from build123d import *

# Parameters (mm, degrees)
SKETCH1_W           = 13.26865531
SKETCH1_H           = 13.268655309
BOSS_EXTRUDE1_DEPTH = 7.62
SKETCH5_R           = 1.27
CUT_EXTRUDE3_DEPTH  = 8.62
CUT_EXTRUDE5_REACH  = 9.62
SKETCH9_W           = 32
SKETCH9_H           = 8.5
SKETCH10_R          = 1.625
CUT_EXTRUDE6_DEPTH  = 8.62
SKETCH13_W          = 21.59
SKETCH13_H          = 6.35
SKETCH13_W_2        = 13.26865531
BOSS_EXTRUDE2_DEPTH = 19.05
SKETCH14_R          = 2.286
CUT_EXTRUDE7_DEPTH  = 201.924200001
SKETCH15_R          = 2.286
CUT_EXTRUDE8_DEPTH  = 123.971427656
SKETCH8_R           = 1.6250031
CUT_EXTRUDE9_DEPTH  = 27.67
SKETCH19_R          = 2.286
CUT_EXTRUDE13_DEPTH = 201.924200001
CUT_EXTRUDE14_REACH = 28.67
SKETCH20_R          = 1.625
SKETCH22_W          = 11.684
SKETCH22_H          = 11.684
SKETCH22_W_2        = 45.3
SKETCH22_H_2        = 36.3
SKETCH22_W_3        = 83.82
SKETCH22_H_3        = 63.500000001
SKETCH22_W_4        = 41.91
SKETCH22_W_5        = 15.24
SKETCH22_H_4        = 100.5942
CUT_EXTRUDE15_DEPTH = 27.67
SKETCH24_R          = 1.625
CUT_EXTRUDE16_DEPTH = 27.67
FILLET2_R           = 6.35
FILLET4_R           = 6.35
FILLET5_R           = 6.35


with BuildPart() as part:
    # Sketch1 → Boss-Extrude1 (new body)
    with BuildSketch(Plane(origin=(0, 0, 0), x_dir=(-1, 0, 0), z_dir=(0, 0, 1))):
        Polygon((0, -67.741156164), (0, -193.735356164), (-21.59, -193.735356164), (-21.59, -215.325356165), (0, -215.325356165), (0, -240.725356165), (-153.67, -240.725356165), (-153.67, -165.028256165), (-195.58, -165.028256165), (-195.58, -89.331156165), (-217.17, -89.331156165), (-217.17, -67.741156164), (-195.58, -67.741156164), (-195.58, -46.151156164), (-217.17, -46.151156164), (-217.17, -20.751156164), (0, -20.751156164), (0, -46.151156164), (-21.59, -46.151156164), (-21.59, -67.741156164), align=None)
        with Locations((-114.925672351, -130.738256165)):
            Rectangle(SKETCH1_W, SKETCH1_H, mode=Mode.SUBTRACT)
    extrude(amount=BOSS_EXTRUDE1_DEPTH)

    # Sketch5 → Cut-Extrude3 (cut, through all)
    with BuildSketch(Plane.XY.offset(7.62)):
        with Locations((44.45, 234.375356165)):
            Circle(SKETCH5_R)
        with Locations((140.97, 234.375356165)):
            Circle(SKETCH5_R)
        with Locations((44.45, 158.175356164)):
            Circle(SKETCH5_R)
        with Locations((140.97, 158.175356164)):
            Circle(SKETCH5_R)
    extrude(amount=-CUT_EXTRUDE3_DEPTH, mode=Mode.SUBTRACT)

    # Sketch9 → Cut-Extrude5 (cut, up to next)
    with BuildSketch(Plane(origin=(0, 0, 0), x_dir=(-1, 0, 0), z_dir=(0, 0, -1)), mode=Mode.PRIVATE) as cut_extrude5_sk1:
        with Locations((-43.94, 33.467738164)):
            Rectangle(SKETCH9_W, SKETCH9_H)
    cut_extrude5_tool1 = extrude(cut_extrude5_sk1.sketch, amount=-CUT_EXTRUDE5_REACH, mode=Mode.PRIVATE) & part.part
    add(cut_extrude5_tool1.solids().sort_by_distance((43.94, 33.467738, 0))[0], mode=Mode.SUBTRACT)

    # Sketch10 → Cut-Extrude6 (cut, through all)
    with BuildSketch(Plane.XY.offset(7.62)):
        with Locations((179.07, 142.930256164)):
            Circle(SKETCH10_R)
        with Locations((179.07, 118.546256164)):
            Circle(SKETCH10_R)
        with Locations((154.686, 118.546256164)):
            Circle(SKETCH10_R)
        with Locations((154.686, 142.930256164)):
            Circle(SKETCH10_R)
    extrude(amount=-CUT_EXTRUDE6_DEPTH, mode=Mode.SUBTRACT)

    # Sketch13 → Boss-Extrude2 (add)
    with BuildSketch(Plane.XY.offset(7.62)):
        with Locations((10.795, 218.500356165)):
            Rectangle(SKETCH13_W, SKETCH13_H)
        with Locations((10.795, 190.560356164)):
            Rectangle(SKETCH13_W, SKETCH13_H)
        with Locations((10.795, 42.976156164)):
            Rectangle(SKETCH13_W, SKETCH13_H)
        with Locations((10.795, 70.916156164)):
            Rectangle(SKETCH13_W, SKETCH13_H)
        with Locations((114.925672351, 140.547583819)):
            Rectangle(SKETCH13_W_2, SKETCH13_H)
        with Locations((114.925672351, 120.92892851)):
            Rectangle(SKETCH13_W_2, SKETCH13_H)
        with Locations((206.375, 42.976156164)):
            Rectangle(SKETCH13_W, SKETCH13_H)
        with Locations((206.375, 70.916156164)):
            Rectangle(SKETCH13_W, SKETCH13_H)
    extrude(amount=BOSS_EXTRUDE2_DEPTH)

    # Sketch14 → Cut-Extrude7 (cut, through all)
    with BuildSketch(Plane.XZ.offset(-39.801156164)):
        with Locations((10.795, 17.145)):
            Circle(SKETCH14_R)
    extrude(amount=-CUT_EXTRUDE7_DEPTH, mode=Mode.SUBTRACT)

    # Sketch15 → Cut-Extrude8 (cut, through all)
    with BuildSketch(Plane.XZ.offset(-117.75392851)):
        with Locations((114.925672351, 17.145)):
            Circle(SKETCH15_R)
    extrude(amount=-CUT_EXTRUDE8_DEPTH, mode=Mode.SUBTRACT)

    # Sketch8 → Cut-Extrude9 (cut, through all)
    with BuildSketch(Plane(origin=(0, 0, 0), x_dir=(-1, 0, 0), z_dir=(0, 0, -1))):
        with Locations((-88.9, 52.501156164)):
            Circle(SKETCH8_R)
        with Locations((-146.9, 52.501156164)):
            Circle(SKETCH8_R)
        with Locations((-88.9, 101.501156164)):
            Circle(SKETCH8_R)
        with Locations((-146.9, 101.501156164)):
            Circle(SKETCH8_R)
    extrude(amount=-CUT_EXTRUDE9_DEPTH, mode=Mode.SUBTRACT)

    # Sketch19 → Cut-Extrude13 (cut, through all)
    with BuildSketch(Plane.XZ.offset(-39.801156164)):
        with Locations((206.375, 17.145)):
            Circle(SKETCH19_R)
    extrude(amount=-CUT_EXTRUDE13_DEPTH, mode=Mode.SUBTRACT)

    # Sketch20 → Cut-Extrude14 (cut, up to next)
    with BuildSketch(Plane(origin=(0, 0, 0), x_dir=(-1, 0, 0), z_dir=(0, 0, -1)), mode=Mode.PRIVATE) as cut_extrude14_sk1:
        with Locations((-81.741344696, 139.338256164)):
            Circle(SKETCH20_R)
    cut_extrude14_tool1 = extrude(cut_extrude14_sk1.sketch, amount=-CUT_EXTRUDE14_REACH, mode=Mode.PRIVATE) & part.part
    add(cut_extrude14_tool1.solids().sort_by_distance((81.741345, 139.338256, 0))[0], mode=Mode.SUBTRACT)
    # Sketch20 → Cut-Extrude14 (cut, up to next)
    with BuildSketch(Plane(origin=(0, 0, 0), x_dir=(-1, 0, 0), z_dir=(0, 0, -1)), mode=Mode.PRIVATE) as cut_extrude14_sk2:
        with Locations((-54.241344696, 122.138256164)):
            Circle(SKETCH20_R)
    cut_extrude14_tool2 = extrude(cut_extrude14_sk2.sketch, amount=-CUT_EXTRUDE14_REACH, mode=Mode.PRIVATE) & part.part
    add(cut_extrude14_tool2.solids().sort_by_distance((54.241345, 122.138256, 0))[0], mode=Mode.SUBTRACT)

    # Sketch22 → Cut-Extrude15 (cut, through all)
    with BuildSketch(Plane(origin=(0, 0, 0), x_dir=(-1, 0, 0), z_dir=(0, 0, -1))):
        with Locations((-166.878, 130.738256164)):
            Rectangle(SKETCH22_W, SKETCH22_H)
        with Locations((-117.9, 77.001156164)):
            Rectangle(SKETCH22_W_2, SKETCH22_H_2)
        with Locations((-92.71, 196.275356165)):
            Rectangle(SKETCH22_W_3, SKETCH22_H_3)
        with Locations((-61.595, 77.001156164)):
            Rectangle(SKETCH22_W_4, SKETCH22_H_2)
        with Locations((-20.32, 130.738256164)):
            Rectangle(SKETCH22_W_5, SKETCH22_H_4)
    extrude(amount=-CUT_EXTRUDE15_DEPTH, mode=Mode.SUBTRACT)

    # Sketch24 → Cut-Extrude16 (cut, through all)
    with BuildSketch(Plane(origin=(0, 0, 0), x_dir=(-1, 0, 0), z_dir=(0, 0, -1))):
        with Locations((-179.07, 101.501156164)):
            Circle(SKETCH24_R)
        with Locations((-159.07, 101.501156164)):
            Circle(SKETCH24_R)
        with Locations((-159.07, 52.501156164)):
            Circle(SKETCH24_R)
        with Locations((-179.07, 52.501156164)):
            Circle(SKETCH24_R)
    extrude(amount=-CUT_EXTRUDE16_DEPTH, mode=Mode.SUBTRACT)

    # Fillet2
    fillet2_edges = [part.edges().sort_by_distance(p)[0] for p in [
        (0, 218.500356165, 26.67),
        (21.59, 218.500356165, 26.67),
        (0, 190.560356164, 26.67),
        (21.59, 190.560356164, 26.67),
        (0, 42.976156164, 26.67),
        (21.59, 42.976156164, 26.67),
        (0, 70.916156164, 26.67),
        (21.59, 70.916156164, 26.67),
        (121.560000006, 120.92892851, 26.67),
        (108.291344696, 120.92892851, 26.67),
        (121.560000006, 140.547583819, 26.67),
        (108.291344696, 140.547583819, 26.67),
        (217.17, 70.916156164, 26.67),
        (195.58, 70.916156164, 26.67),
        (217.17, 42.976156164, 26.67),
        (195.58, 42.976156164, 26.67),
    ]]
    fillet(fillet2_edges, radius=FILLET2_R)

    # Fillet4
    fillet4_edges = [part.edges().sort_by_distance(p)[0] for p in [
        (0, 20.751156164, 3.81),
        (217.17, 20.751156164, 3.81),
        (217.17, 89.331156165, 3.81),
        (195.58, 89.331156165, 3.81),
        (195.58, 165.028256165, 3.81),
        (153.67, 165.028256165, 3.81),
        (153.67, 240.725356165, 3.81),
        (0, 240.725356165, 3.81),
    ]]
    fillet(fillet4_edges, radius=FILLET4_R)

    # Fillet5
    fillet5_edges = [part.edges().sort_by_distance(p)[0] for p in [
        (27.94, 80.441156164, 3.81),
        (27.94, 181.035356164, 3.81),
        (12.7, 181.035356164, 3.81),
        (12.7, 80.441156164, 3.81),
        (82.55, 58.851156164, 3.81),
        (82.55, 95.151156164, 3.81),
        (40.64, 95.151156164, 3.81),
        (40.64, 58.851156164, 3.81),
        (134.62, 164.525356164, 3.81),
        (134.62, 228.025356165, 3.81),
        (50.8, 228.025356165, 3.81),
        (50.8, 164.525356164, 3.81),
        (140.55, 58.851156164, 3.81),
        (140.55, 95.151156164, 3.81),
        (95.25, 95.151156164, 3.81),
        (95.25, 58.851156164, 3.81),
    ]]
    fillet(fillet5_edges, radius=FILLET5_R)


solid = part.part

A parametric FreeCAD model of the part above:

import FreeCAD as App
import Part
import Sketcher
Q = App.Units.Quantity


def edges_at(feature, points):
    """Names of the edges that pass closest to the given points."""
    edges = feature.Shape.Edges
    near = lambda p: min(range(len(edges)), key=lambda i: edges[i].distToShape(Part.Vertex(*p))[0])
    return sorted({f"Edge{near(p) + 1}" for p in points})


def add_polygon(sketch, points):
    """Adds a closed chain of lines whose ends are joined by coincident constraints."""
    first, n = sketch.GeometryCount, len(points)
    for a, b in zip(points, points[1:] + points[:1]):
        sketch.addGeometry(Part.LineSegment(App.Vector(*a, 0), App.Vector(*b, 0)), False)
    for i in range(n):
        sketch.addConstraint(Sketcher.Constraint("Coincident", first + i, 2, first + (i + 1) % n, 1))

doc = App.newDocument("Part")
params = doc.addObject("Spreadsheet::Sheet", "Params")
for row, (alias, value) in enumerate([
    ("sketch1_height", "1 in"),
    ("sketch1_width", "0.85 in"),
    ("sketch1_width2", "8.55 in"),
    ("sketch1_width3", "1.65 in"),
    ("pad1_length", "0.3 in"),
    ("sketch2_diameter", "0.1 in"),
    ("sketch5_width", "0.85 in"),
    ("sketch5_height", "0.25 in"),
    ("pad2_length", "0.75 in"),
    ("sketch6_diameter", "0.18 in"),
    ("sketch7_diameter", "0.18 in"),
    ("sketch9_diameter", "0.18 in"),
    ("sketch12_width", "3.3 in"),
    ("sketch12_width2", "0.6 in"),
    ("sketch12_height", "2.5 in"),
    ("sketch12_width3", "0.46 in"),
    ("sketch12_width4", "1.65 in"),
    ("fillet_radius", "0.25 in"),
    ("fillet2_radius", "0.25 in"),
    ("fillet3_radius", "0.25 in"),
], start=1):
    params.set(f"A{row}", alias)
    params.set(f"B{row}", "=" + value)
    params.setAlias(f"B{row}", alias)

body = doc.addObject("PartDesign::Body", "Body")

# Sketch on XY plane
sketch1 = body.newObject("Sketcher::SketchObject", "Sketch")
sketch1.AttachmentSupport = (doc.getObject("XY_Plane"), [""])
sketch1.MapMode = "FlatFace"
add_polygon(sketch1, [(0, 194), (0, 68), (22, 68), (22, 46), (0, 46), (0, 21), (217, 21), (217, 46), (196, 46), (196, 68), (217, 68), (217, 89), (196, 89), (196, 165), (154, 165), (154, 241), (0, 241), (0, 215), (22, 215), (22, 194)])  # lines 0-19
add_polygon(sketch1, [(122, 137), (122, 124), (108, 124), (108, 137)])  # lines 20-23
sketch1.addConstraint(Sketcher.Constraint("Vertical", 0))
sketch1.addConstraint(Sketcher.Constraint("Horizontal", 1))
sketch1.addConstraint(Sketcher.Constraint("Vertical", 2))
sketch1.addConstraint(Sketcher.Constraint("Horizontal", 3))
sketch1.addConstraint(Sketcher.Constraint("Vertical", 4))
sketch1.addConstraint(Sketcher.Constraint("Horizontal", 5))
sketch1.addConstraint(Sketcher.Constraint("Vertical", 6))
sketch1.addConstraint(Sketcher.Constraint("Horizontal", 7))
sketch1.addConstraint(Sketcher.Constraint("Vertical", 8))
sketch1.addConstraint(Sketcher.Constraint("Horizontal", 9))
sketch1.addConstraint(Sketcher.Constraint("Vertical", 10))
sketch1.addConstraint(Sketcher.Constraint("Horizontal", 11))
sketch1.addConstraint(Sketcher.Constraint("Vertical", 12))
sketch1.addConstraint(Sketcher.Constraint("Horizontal", 13))
sketch1.addConstraint(Sketcher.Constraint("Vertical", 14))
sketch1.addConstraint(Sketcher.Constraint("Horizontal", 15))
sketch1.addConstraint(Sketcher.Constraint("Vertical", 16))
sketch1.addConstraint(Sketcher.Constraint("Horizontal", 17))
sketch1.addConstraint(Sketcher.Constraint("Vertical", 18))
sketch1.addConstraint(Sketcher.Constraint("Horizontal", 19))
sketch1.addConstraint(Sketcher.Constraint("Vertical", 20))
sketch1.addConstraint(Sketcher.Constraint("Horizontal", 21))
sketch1.addConstraint(Sketcher.Constraint("Vertical", 22))
sketch1.addConstraint(Sketcher.Constraint("Horizontal", 23))
sketch1.addConstraint(Sketcher.Constraint("PointOnObject", 0, 2, -2))
sketch1.addConstraint(Sketcher.Constraint("PointOnObject", 3, 2, -2))
sketch1.addConstraint(Sketcher.Constraint("PointOnObject", 15, 2, -2))
sketch1.addConstraint(Sketcher.Constraint("Horizontal", 3, 2, 6, 2))
sketch1.addConstraint(Sketcher.Constraint("Horizontal", 1, 2, 8, 2))
sketch1.addConstraint(Sketcher.Constraint("Vertical", 6, 2, 9, 2))
sketch1.addConstraint(Sketcher.Constraint("Vertical", 8, 2, 11, 2))
sketch1.addConstraint(Sketcher.Constraint("Vertical", 2, 2, 17, 2))
sketch1.addConstraint(Sketcher.Constraint("Equal", 3, 7))
sketch1.addConstraint(Sketcher.Constraint("Equal", 19, 2))
sketch1.addConstraint(Sketcher.Constraint("Equal", 8, 10))
sketch1.addConstraint(Sketcher.Constraint("Equal", 12, 14))
sketch1.addConstraint(Sketcher.Constraint("Equal", 6, 16))
sketch1.addConstraint(Sketcher.Constraint("Equal", 10, 18))
sketch1.addConstraint(Sketcher.Constraint("Equal", 23, 20))
sketch1.addConstraint(Sketcher.Constraint("DistanceY", 4, 2, 4, 1, Q("1 in")))
sketch1.addConstraint(Sketcher.Constraint("DistanceX", 1, 1, 1, 2, Q("0.85 in")))
sketch1.addConstraint(Sketcher.Constraint("DistanceX", 5, 1, 5, 2, Q("8.55 in")))
sketch1.addConstraint(Sketcher.Constraint("DistanceX", 13, 2, 13, 1, Q("1.65 in")))
sketch1.addConstraint(Sketcher.Constraint("DistanceY", 0, 2, 0, 1, Q("125.9942 mm")))
sketch1.addConstraint(Sketcher.Constraint("DistanceX", -1, 1, 20, 2, Q("121.56 mm")))
sketch1.addConstraint(Sketcher.Constraint("DistanceX", 21, 2, 21, 1, Q("13.268655 mm")))
sketch1.addConstraint(Sketcher.Constraint("DistanceY", -1, 1, 20, 2, Q("124.103929 mm")))
sketch1.addConstraint(Sketcher.Constraint("DistanceY", -1, 1, 0, 2, Q("67.741156 mm")))
sketch1.setExpression("Constraints[63]", "Params.sketch1_height")
sketch1.setExpression("Constraints[64]", "Params.sketch1_width")
sketch1.setExpression("Constraints[65]", "Params.sketch1_width2")
sketch1.setExpression("Constraints[66]", "Params.sketch1_width3")
pad1 = body.newObject("PartDesign::Pad", "Pad")
pad1.Profile = sketch1
pad1.setExpression("Length", "Params.pad1_length")

# Sketch on XY plane
sketch2 = body.newObject("Sketcher::SketchObject", "Sketch001")
sketch2.AttachmentSupport = (doc.getObject("XY_Plane"), [""])
sketch2.MapMode = "FlatFace"
sketch2.AttachmentOffset = App.Placement(App.Vector(0, 0, 0.3 * 25.4), App.Rotation())
sketch2.addGeometry(Part.Circle(App.Vector(44.5, 234.4, 0), App.Vector(0, 0, 1), 1.3), False)
sketch2.addGeometry(Part.Circle(App.Vector(141, 234.4, 0), App.Vector(0, 0, 1), 1.3), False)
sketch2.addGeometry(Part.Circle(App.Vector(44.5, 158.2, 0), App.Vector(0, 0, 1), 1.3), False)
sketch2.addGeometry(Part.Circle(App.Vector(141, 158.2, 0), App.Vector(0, 0, 1), 1.3), False)
sketch2.addConstraint(Sketcher.Constraint("Equal", 0, 1))
sketch2.addConstraint(Sketcher.Constraint("Equal", 1, 2))
sketch2.addConstraint(Sketcher.Constraint("Equal", 2, 3))
sketch2.addConstraint(Sketcher.Constraint("Horizontal", 0, 3, 1, 3))
sketch2.addConstraint(Sketcher.Constraint("Horizontal", 2, 3, 3, 3))
sketch2.addConstraint(Sketcher.Constraint("Vertical", 0, 3, 2, 3))
sketch2.addConstraint(Sketcher.Constraint("Vertical", 1, 3, 3, 3))
sketch2.addConstraint(Sketcher.Constraint("Diameter", 0, Q("0.1 in")))
sketch2.addConstraint(Sketcher.Constraint("DistanceY", 2, 3, 0, 3, Q("3 in")))
sketch2.addConstraint(Sketcher.Constraint("DistanceX", 0, 3, 1, 3, Q("3.8 in")))
sketch2.addConstraint(Sketcher.Constraint("DistanceX", -1, 1, 0, 3, Q("1.75 in")))
sketch2.addConstraint(Sketcher.Constraint("DistanceY", -1, 1, 0, 3, Q("234.375356 mm")))
sketch2.setExpression("Constraints[7]", "Params.sketch2_diameter")
pocket1 = body.newObject("PartDesign::Pocket", "Pocket")
pocket1.Profile = sketch2
pocket1.Type = "ThroughAll"

# Sketch on XY plane
sketch3 = body.newObject("Sketcher::SketchObject", "Sketch002")
sketch3.AttachmentSupport = (doc.getObject("XY_Plane"), [""])
sketch3.MapMode = "FlatFace"
add_polygon(sketch3, [(60, 38), (60, 29), (28, 29), (28, 38)])  # lines 0-3
sketch3.addConstraint(Sketcher.Constraint("Vertical", 0))
sketch3.addConstraint(Sketcher.Constraint("Horizontal", 1))
sketch3.addConstraint(Sketcher.Constraint("Vertical", 2))
sketch3.addConstraint(Sketcher.Constraint("Horizontal", 3))
sketch3.addConstraint(Sketcher.Constraint("DistanceX", -1, 1, 1, 2, Q("1.1 in")))
sketch3.addConstraint(Sketcher.Constraint("DistanceX", 1, 2, 1, 1, Q("32 mm")))
sketch3.addConstraint(Sketcher.Constraint("DistanceY", 0, 2, 0, 1, Q("8.5 mm")))
sketch3.addConstraint(Sketcher.Constraint("DistanceY", -1, 1, 0, 2, Q("29.217738 mm")))
pocket2 = body.newObject("PartDesign::Pocket", "Pocket001")
pocket2.Profile = sketch3
pocket2.Type = "UpToFirst"
pocket2.Reversed = True

# Sketch on XY plane
sketch4 = body.newObject("Sketcher::SketchObject", "Sketch003")
sketch4.AttachmentSupport = (doc.getObject("XY_Plane"), [""])
sketch4.MapMode = "FlatFace"
sketch4.AttachmentOffset = App.Placement(App.Vector(0, 0, 0.3 * 25.4), App.Rotation())
sketch4.addGeometry(Part.Circle(App.Vector(179.1, 142.9, 0), App.Vector(0, 0, 1), 1.6), False)
sketch4.addGeometry(Part.Circle(App.Vector(179.1, 118.5, 0), App.Vector(0, 0, 1), 1.6), False)
sketch4.addGeometry(Part.Circle(App.Vector(154.7, 118.5, 0), App.Vector(0, 0, 1), 1.6), False)
sketch4.addGeometry(Part.Circle(App.Vector(154.7, 142.9, 0), App.Vector(0, 0, 1), 1.6), False)
sketch4.addConstraint(Sketcher.Constraint("Equal", 0, 1))
sketch4.addConstraint(Sketcher.Constraint("Equal", 1, 2))
sketch4.addConstraint(Sketcher.Constraint("Equal", 2, 3))
sketch4.addConstraint(Sketcher.Constraint("Horizontal", 1, 3, 2, 3))
sketch4.addConstraint(Sketcher.Constraint("Horizontal", 0, 3, 3, 3))
sketch4.addConstraint(Sketcher.Constraint("Vertical", 0, 3, 1, 3))
sketch4.addConstraint(Sketcher.Constraint("Vertical", 2, 3, 3, 3))
sketch4.addConstraint(Sketcher.Constraint("Diameter", 0, Q("3.25 mm")))
sketch4.addConstraint(Sketcher.Constraint("DistanceX", -1, 1, 0, 3, Q("7.05 in")))
sketch4.addConstraint(Sketcher.Constraint("DistanceX", -1, 1, 2, 3, Q("6.09 in")))
sketch4.addConstraint(Sketcher.Constraint("DistanceY", 1, 3, 0, 3, Q("0.96 in")))
sketch4.addConstraint(Sketcher.Constraint("DistanceY", -1, 1, 0, 3, Q("142.930256 mm")))
pocket3 = body.newObject("PartDesign::Pocket", "Pocket002")
pocket3.Profile = sketch4
pocket3.Type = "ThroughAll"

# Sketch on XY plane
sketch5 = body.newObject("Sketcher::SketchObject", "Sketch004")
sketch5.AttachmentSupport = (doc.getObject("XY_Plane"), [""])
sketch5.MapMode = "FlatFace"
sketch5.AttachmentOffset = App.Placement(App.Vector(0, 0, 0.3 * 25.4), App.Rotation())
add_polygon(sketch5, [(0, 222), (0, 215), (22, 215), (22, 222)])  # lines 0-3
add_polygon(sketch5, [(0, 194), (0, 187), (22, 187), (22, 194)])  # lines 4-7
add_polygon(sketch5, [(0, 46), (0, 40), (22, 40), (22, 46)])  # lines 8-11
add_polygon(sketch5, [(0, 74), (0, 68), (22, 68), (22, 74)])  # lines 12-15
add_polygon(sketch5, [(108, 144), (108, 137), (122, 137), (122, 144)])  # lines 16-19
add_polygon(sketch5, [(108, 124), (108, 118), (122, 118), (122, 124)])  # lines 20-23
add_polygon(sketch5, [(196, 46), (196, 40), (217, 40), (217, 46)])  # lines 24-27
add_polygon(sketch5, [(196, 74), (196, 68), (217, 68), (217, 74)])  # lines 28-31
sketch5.addConstraint(Sketcher.Constraint("Vertical", 0))
sketch5.addConstraint(Sketcher.Constraint("Horizontal", 1))
sketch5.addConstraint(Sketcher.Constraint("Vertical", 2))
sketch5.addConstraint(Sketcher.Constraint("Horizontal", 3))
sketch5.addConstraint(Sketcher.Constraint("Vertical", 4))
sketch5.addConstraint(Sketcher.Constraint("Horizontal", 5))
sketch5.addConstraint(Sketcher.Constraint("Vertical", 6))
sketch5.addConstraint(Sketcher.Constraint("Horizontal", 7))
sketch5.addConstraint(Sketcher.Constraint("Vertical", 8))
sketch5.addConstraint(Sketcher.Constraint("Horizontal", 9))
sketch5.addConstraint(Sketcher.Constraint("Vertical", 10))
sketch5.addConstraint(Sketcher.Constraint("Horizontal", 11))
sketch5.addConstraint(Sketcher.Constraint("Vertical", 12))
sketch5.addConstraint(Sketcher.Constraint("Horizontal", 13))
sketch5.addConstraint(Sketcher.Constraint("Vertical", 14))
sketch5.addConstraint(Sketcher.Constraint("Horizontal", 15))
sketch5.addConstraint(Sketcher.Constraint("Vertical", 16))
sketch5.addConstraint(Sketcher.Constraint("Horizontal", 17))
sketch5.addConstraint(Sketcher.Constraint("Vertical", 18))
sketch5.addConstraint(Sketcher.Constraint("Horizontal", 19))
sketch5.addConstraint(Sketcher.Constraint("Vertical", 20))
sketch5.addConstraint(Sketcher.Constraint("Horizontal", 21))
sketch5.addConstraint(Sketcher.Constraint("Vertical", 22))
sketch5.addConstraint(Sketcher.Constraint("Horizontal", 23))
sketch5.addConstraint(Sketcher.Constraint("Vertical", 24))
sketch5.addConstraint(Sketcher.Constraint("Horizontal", 25))
sketch5.addConstraint(Sketcher.Constraint("Vertical", 26))
sketch5.addConstraint(Sketcher.Constraint("Horizontal", 27))
sketch5.addConstraint(Sketcher.Constraint("Vertical", 28))
sketch5.addConstraint(Sketcher.Constraint("Horizontal", 29))
sketch5.addConstraint(Sketcher.Constraint("Vertical", 30))
sketch5.addConstraint(Sketcher.Constraint("Horizontal", 31))
sketch5.addConstraint(Sketcher.Constraint("PointOnObject", 0, 2, -2))
sketch5.addConstraint(Sketcher.Constraint("PointOnObject", 4, 2, -2))
sketch5.addConstraint(Sketcher.Constraint("PointOnObject", 8, 2, -2))
sketch5.addConstraint(Sketcher.Constraint("PointOnObject", 12, 2, -2))
sketch5.addConstraint(Sketcher.Constraint("Horizontal", 9, 2, 24, 2))
sketch5.addConstraint(Sketcher.Constraint("Horizontal", 11, 2, 26, 2))
sketch5.addConstraint(Sketcher.Constraint("Horizontal", 13, 2, 28, 2))
sketch5.addConstraint(Sketcher.Constraint("Horizontal", 15, 2, 30, 2))
sketch5.addConstraint(Sketcher.Constraint("Vertical", 2, 2, 5, 2))
sketch5.addConstraint(Sketcher.Constraint("Vertical", 6, 2, 9, 2))
sketch5.addConstraint(Sketcher.Constraint("Vertical", 10, 2, 13, 2))
sketch5.addConstraint(Sketcher.Constraint("Vertical", 19, 2, 20, 2))
sketch5.addConstraint(Sketcher.Constraint("Vertical", 18, 2, 21, 2))
sketch5.addConstraint(Sketcher.Constraint("Vertical", 27, 2, 28, 2))
sketch5.addConstraint(Sketcher.Constraint("Vertical", 26, 2, 29, 2))
sketch5.addConstraint(Sketcher.Constraint("Equal", 15, 25))
sketch5.addConstraint(Sketcher.Constraint("Equal", 2, 4))
sketch5.addConstraint(Sketcher.Constraint("Equal", 6, 8))
sketch5.addConstraint(Sketcher.Constraint("Equal", 10, 12))
sketch5.addConstraint(Sketcher.Constraint("Equal", 14, 16))
sketch5.addConstraint(Sketcher.Constraint("Equal", 18, 20))
sketch5.addConstraint(Sketcher.Constraint("DistanceX", 1, 1, 1, 2, Q("0.85 in")))
sketch5.addConstraint(Sketcher.Constraint("DistanceY", 0, 2, 0, 1, Q("0.25 in")))
sketch5.addConstraint(Sketcher.Constraint("DistanceX", -1, 1, 24, 2, Q("7.7 in")))
sketch5.addConstraint(Sketcher.Constraint("DistanceY", 4, 2, 0, 2, Q("1.1 in")))
sketch5.addConstraint(Sketcher.Constraint("DistanceY", 8, 2, 12, 2, Q("1.1 in")))
sketch5.addConstraint(Sketcher.Constraint("DistanceX", -1, 1, 17, 2, Q("121.56 mm")))
sketch5.addConstraint(Sketcher.Constraint("DistanceY", 8, 2, 4, 2, Q("147.5842 mm")))
sketch5.addConstraint(Sketcher.Constraint("DistanceX", 17, 1, 17, 2, Q("13.268655 mm")))
sketch5.addConstraint(Sketcher.Constraint("DistanceY", -1, 1, 20, 2, Q("117.753929 mm")))
sketch5.addConstraint(Sketcher.Constraint("DistanceY", -1, 1, 0, 2, Q("215.325356 mm")))
sketch5.addConstraint(Sketcher.Constraint("DistanceY", -1, 1, 16, 2, Q("137.372584 mm")))
sketch5.setExpression("Constraints[85]", "Params.sketch5_width")
sketch5.setExpression("Constraints[86]", "Params.sketch5_height")
pad2 = body.newObject("PartDesign::Pad", "Pad001")
pad2.Profile = sketch5
pad2.setExpression("Length", "Params.pad2_length")

# Sketch on XZ plane
sketch6 = body.newObject("Sketcher::SketchObject", "Sketch005")
sketch6.AttachmentSupport = (doc.getObject("XZ_Plane"), [""])
sketch6.MapMode = "FlatFace"
sketch6.AttachmentOffset = App.Placement(App.Vector(0, 0, -39.801156), App.Rotation())
sketch6.addGeometry(Part.Circle(App.Vector(10.8, 17.1, 0), App.Vector(0, 0, 1), 2.3), False)
sketch6.addConstraint(Sketcher.Constraint("Diameter", 0, Q("0.18 in")))
sketch6.addConstraint(Sketcher.Constraint("DistanceX", -1, 1, 0, 3, Q("0.425 in")))
sketch6.addConstraint(Sketcher.Constraint("DistanceY", -1, 1, 0, 3, Q("0.675 in")))
sketch6.setExpression("Constraints[0]", "Params.sketch6_diameter")
pocket4 = body.newObject("PartDesign::Pocket", "Pocket003")
pocket4.Profile = sketch6
pocket4.Type = "ThroughAll"

# Sketch on XZ plane
sketch7 = body.newObject("Sketcher::SketchObject", "Sketch006")
sketch7.AttachmentSupport = (doc.getObject("XZ_Plane"), [""])
sketch7.MapMode = "FlatFace"
sketch7.AttachmentOffset = App.Placement(App.Vector(0, 0, -117.753929), App.Rotation())
sketch7.addGeometry(Part.Circle(App.Vector(114.9, 17.1, 0), App.Vector(0, 0, 1), 2.3), False)
sketch7.addConstraint(Sketcher.Constraint("Diameter", 0, Q("0.18 in")))
sketch7.addConstraint(Sketcher.Constraint("DistanceY", -1, 1, 0, 3, Q("0.675 in")))
sketch7.addConstraint(Sketcher.Constraint("DistanceX", -1, 1, 0, 3, Q("114.925672 mm")))
sketch7.setExpression("Constraints[0]", "Params.sketch7_diameter")
pocket5 = body.newObject("PartDesign::Pocket", "Pocket004")
pocket5.Profile = sketch7
pocket5.Type = "ThroughAll"

# Sketch on XY plane
sketch8 = body.newObject("Sketcher::SketchObject", "Sketch007")
sketch8.AttachmentSupport = (doc.getObject("XY_Plane"), [""])
sketch8.MapMode = "FlatFace"
sketch8.addGeometry(Part.Circle(App.Vector(88.9, 52.5, 0), App.Vector(0, 0, 1), 1.6), False)
sketch8.addGeometry(Part.Circle(App.Vector(146.9, 52.5, 0), App.Vector(0, 0, 1), 1.6), False)
sketch8.addGeometry(Part.Circle(App.Vector(88.9, 101.5, 0), App.Vector(0, 0, 1), 1.6), False)
sketch8.addGeometry(Part.Circle(App.Vector(146.9, 101.5, 0), App.Vector(0, 0, 1), 1.6), False)
sketch8.addConstraint(Sketcher.Constraint("Equal", 0, 1))
sketch8.addConstraint(Sketcher.Constraint("Equal", 1, 2))
sketch8.addConstraint(Sketcher.Constraint("Equal", 2, 3))
sketch8.addConstraint(Sketcher.Constraint("Horizontal", 0, 3, 1, 3))
sketch8.addConstraint(Sketcher.Constraint("Horizontal", 2, 3, 3, 3))
sketch8.addConstraint(Sketcher.Constraint("Vertical", 0, 3, 2, 3))
sketch8.addConstraint(Sketcher.Constraint("Vertical", 1, 3, 3, 3))
sketch8.addConstraint(Sketcher.Constraint("DistanceX", -1, 1, 0, 3, Q("3.5 in")))
sketch8.addConstraint(Sketcher.Constraint("Diameter", 0, Q("3.250006 mm")))
sketch8.addConstraint(Sketcher.Constraint("DistanceX", -1, 1, 1, 3, Q("146.9 mm")))
sketch8.addConstraint(Sketcher.Constraint("DistanceY", 0, 3, 2, 3, Q("49 mm")))
sketch8.addConstraint(Sketcher.Constraint("DistanceY", -1, 1, 0, 3, Q("52.501156 mm")))
pocket6 = body.newObject("PartDesign::Pocket", "Pocket005")
pocket6.Profile = sketch8
pocket6.Type = "ThroughAll"
pocket6.Reversed = True

# Sketch on XZ plane
sketch9 = body.newObject("Sketcher::SketchObject", "Sketch008")
sketch9.AttachmentSupport = (doc.getObject("XZ_Plane"), [""])
sketch9.MapMode = "FlatFace"
sketch9.AttachmentOffset = App.Placement(App.Vector(0, 0, -39.801156), App.Rotation())
sketch9.addGeometry(Part.Circle(App.Vector(206.4, 17.1, 0), App.Vector(0, 0, 1), 2.3), False)
sketch9.addConstraint(Sketcher.Constraint("Diameter", 0, Q("0.18 in")))
sketch9.addConstraint(Sketcher.Constraint("DistanceX", -1, 1, 0, 3, Q("8.125 in")))
sketch9.addConstraint(Sketcher.Constraint("DistanceY", -1, 1, 0, 3, Q("0.675 in")))
sketch9.setExpression("Constraints[0]", "Params.sketch9_diameter")
pocket7 = body.newObject("PartDesign::Pocket", "Pocket006")
pocket7.Profile = sketch9
pocket7.Type = "ThroughAll"

# Sketch on XY plane
sketch10 = body.newObject("Sketcher::SketchObject", "Sketch009")
sketch10.AttachmentSupport = (doc.getObject("XY_Plane"), [""])
sketch10.MapMode = "FlatFace"
sketch10.addGeometry(Part.Circle(App.Vector(81.7, 139.3, 0), App.Vector(0, 0, 1), 1.6), False)
sketch10.addConstraint(Sketcher.Constraint("Diameter", 0, Q("3.25 mm")))
sketch10.addConstraint(Sketcher.Constraint("DistanceX", -1, 1, 0, 3, Q("81.741345 mm")))
sketch10.addConstraint(Sketcher.Constraint("DistanceY", -1, 1, 0, 3, Q("139.338256 mm")))
pocket8 = body.newObject("PartDesign::Pocket", "Pocket007")
pocket8.Profile = sketch10
pocket8.Type = "UpToFirst"
pocket8.Reversed = True

# Sketch on XY plane
sketch11 = body.newObject("Sketcher::SketchObject", "Sketch010")
sketch11.AttachmentSupport = (doc.getObject("XY_Plane"), [""])
sketch11.MapMode = "FlatFace"
sketch11.addGeometry(Part.Circle(App.Vector(54.2, 122.1, 0), App.Vector(0, 0, 1), 1.6), False)
sketch11.addConstraint(Sketcher.Constraint("Diameter", 0, Q("3.25 mm")))
sketch11.addConstraint(Sketcher.Constraint("DistanceX", -1, 1, 0, 3, Q("54.241345 mm")))
sketch11.addConstraint(Sketcher.Constraint("DistanceY", -1, 1, 0, 3, Q("122.138256 mm")))
pocket9 = body.newObject("PartDesign::Pocket", "Pocket008")
pocket9.Profile = sketch11
pocket9.Type = "UpToFirst"
pocket9.Reversed = True

# Sketch on XY plane
sketch12 = body.newObject("Sketcher::SketchObject", "Sketch011")
sketch12.AttachmentSupport = (doc.getObject("XY_Plane"), [""])
sketch12.MapMode = "FlatFace"
add_polygon(sketch12, [(173, 137), (173, 125), (161, 125), (161, 137)])  # lines 0-3
add_polygon(sketch12, [(141, 95), (141, 59), (95, 59), (95, 95)])  # lines 4-7
add_polygon(sketch12, [(135, 228), (135, 165), (51, 165), (51, 228)])  # lines 8-11
add_polygon(sketch12, [(83, 95), (83, 59), (41, 59), (41, 95)])  # lines 12-15
add_polygon(sketch12, [(28, 181), (28, 80), (13, 80), (13, 181)])  # lines 16-19
sketch12.addConstraint(Sketcher.Constraint("Vertical", 0))
sketch12.addConstraint(Sketcher.Constraint("Horizontal", 1))
sketch12.addConstraint(Sketcher.Constraint("Vertical", 2))
sketch12.addConstraint(Sketcher.Constraint("Horizontal", 3))
sketch12.addConstraint(Sketcher.Constraint("Vertical", 4))
sketch12.addConstraint(Sketcher.Constraint("Horizontal", 5))
sketch12.addConstraint(Sketcher.Constraint("Vertical", 6))
sketch12.addConstraint(Sketcher.Constraint("Horizontal", 7))
sketch12.addConstraint(Sketcher.Constraint("Vertical", 8))
sketch12.addConstraint(Sketcher.Constraint("Horizontal", 9))
sketch12.addConstraint(Sketcher.Constraint("Vertical", 10))
sketch12.addConstraint(Sketcher.Constraint("Horizontal", 11))
sketch12.addConstraint(Sketcher.Constraint("Vertical", 12))
sketch12.addConstraint(Sketcher.Constraint("Horizontal", 13))
sketch12.addConstraint(Sketcher.Constraint("Vertical", 14))
sketch12.addConstraint(Sketcher.Constraint("Horizontal", 15))
sketch12.addConstraint(Sketcher.Constraint("Vertical", 16))
sketch12.addConstraint(Sketcher.Constraint("Horizontal", 17))
sketch12.addConstraint(Sketcher.Constraint("Vertical", 18))
sketch12.addConstraint(Sketcher.Constraint("Horizontal", 19))
sketch12.addConstraint(Sketcher.Constraint("Horizontal", 5, 2, 12, 2))
sketch12.addConstraint(Sketcher.Constraint("Horizontal", 7, 2, 14, 2))
sketch12.addConstraint(Sketcher.Constraint("Equal", 3, 0))
sketch12.addConstraint(Sketcher.Constraint("DistanceX", 9, 2, 9, 1, Q("3.3 in")))
sketch12.addConstraint(Sketcher.Constraint("DistanceX", 17, 2, 17, 1, Q("0.6 in")))
sketch12.addConstraint(Sketcher.Constraint("DistanceY", 8, 2, 8, 1, Q("2.5 in")))
sketch12.addConstraint(Sketcher.Constraint("DistanceX", -1, 1, 9, 2, Q("2 in")))
sketch12.addConstraint(Sketcher.Constraint("DistanceX", 1, 2, 1, 1, Q("0.46 in")))
sketch12.addConstraint(Sketcher.Constraint("DistanceX", 13, 2, 13, 1, Q("1.65 in")))
sketch12.addConstraint(Sketcher.Constraint("DistanceX", -1, 1, 0, 2, Q("6.8 in")))
sketch12.addConstraint(Sketcher.Constraint("DistanceX", -1, 1, 13, 2, Q("1.6 in")))
sketch12.addConstraint(Sketcher.Constraint("DistanceX", -1, 1, 16, 2, Q("1.1 in")))
sketch12.addConstraint(Sketcher.Constraint("DistanceX", 12, 2, 5, 2, Q("0.5 in")))
sketch12.addConstraint(Sketcher.Constraint("DistanceY", 13, 2, 16, 2, Q("0.85 in")))
sketch12.addConstraint(Sketcher.Constraint("DistanceY", 9, 2, 18, 2, Q("0.65 in")))
sketch12.addConstraint(Sketcher.Constraint("DistanceX", 5, 2, 5, 1, Q("45.3 mm")))
sketch12.addConstraint(Sketcher.Constraint("DistanceY", 4, 2, 4, 1, Q("36.3 mm")))
sketch12.addConstraint(Sketcher.Constraint("DistanceY", 16, 2, 16, 1, Q("100.5942 mm")))
sketch12.addConstraint(Sketcher.Constraint("DistanceY", 4, 2, 1, 2, Q("66.0451 mm")))
sketch12.addConstraint(Sketcher.Constraint("DistanceY", -1, 1, 0, 2, Q("124.896256 mm")))
sketch12.setExpression("Constraints[43]", "Params.sketch12_width")
sketch12.setExpression("Constraints[44]", "Params.sketch12_width2")
sketch12.setExpression("Constraints[45]", "Params.sketch12_height")
sketch12.setExpression("Constraints[47]", "Params.sketch12_width3")
sketch12.setExpression("Constraints[48]", "Params.sketch12_width4")
pocket10 = body.newObject("PartDesign::Pocket", "Pocket009")
pocket10.Profile = sketch12
pocket10.Type = "ThroughAll"
pocket10.Reversed = True

# Sketch on XY plane
sketch13 = body.newObject("Sketcher::SketchObject", "Sketch012")
sketch13.AttachmentSupport = (doc.getObject("XY_Plane"), [""])
sketch13.MapMode = "FlatFace"
sketch13.addGeometry(Part.Circle(App.Vector(179.1, 101.5, 0), App.Vector(0, 0, 1), 1.6), False)
sketch13.addGeometry(Part.Circle(App.Vector(159.1, 101.5, 0), App.Vector(0, 0, 1), 1.6), False)
sketch13.addGeometry(Part.Circle(App.Vector(159.1, 52.5, 0), App.Vector(0, 0, 1), 1.6), False)
sketch13.addGeometry(Part.Circle(App.Vector(179.1, 52.5, 0), App.Vector(0, 0, 1), 1.6), False)
sketch13.addConstraint(Sketcher.Constraint("Equal", 0, 1))
sketch13.addConstraint(Sketcher.Constraint("Equal", 1, 2))
sketch13.addConstraint(Sketcher.Constraint("Equal", 2, 3))
sketch13.addConstraint(Sketcher.Constraint("Horizontal", 0, 3, 1, 3))
sketch13.addConstraint(Sketcher.Constraint("Horizontal", 2, 3, 3, 3))
sketch13.addConstraint(Sketcher.Constraint("Vertical", 1, 3, 2, 3))
sketch13.addConstraint(Sketcher.Constraint("Vertical", 0, 3, 3, 3))
sketch13.addConstraint(Sketcher.Constraint("Diameter", 0, Q("3.25 mm")))
sketch13.addConstraint(Sketcher.Constraint("DistanceX", -1, 1, 0, 3, Q("7.05 in")))
sketch13.addConstraint(Sketcher.Constraint("DistanceX", -1, 1, 1, 3, Q("159.07 mm")))
sketch13.addConstraint(Sketcher.Constraint("DistanceY", 2, 3, 1, 3, Q("49 mm")))
sketch13.addConstraint(Sketcher.Constraint("DistanceY", -1, 1, 0, 3, Q("101.501156 mm")))
pocket11 = body.newObject("PartDesign::Pocket", "Pocket010")
pocket11.Profile = sketch13
pocket11.Type = "ThroughAll"
pocket11.Reversed = True
doc.recompute()

fillet = body.newObject("PartDesign::Fillet", "Fillet")
fillet.Base = (pocket11, edges_at(pocket11, [
    (0, 218.5, 26.67),
    (21.59, 218.5, 26.67),
    (0, 190.56, 26.67),
    (21.59, 190.56, 26.67),
    (0, 42.976, 26.67),
    (21.59, 42.976, 26.67),
    (0, 70.916, 26.67),
    (21.59, 70.916, 26.67),
    (121.56, 120.929, 26.67),
    (108.291, 120.929, 26.67),
    (121.56, 140.548, 26.67),
    (108.291, 140.548, 26.67),
    (217.17, 70.916, 26.67),
    (195.58, 70.916, 26.67),
    (217.17, 42.976, 26.67),
    (195.58, 42.976, 26.67),
]))
fillet.setExpression("Radius", "Params.fillet_radius")
doc.recompute()

fillet2 = body.newObject("PartDesign::Fillet", "Fillet001")
fillet2.Base = (fillet, edges_at(fillet, [
    (0, 20.751, 3.81),
    (217.17, 20.751, 3.81),
    (217.17, 89.331, 3.81),
    (195.58, 89.331, 3.81),
    (195.58, 165.028, 3.81),
    (153.67, 165.028, 3.81),
    (153.67, 240.725, 3.81),
    (0, 240.725, 3.81),
]))
fillet2.setExpression("Radius", "Params.fillet2_radius")
doc.recompute()

fillet3 = body.newObject("PartDesign::Fillet", "Fillet002")
fillet3.Base = (fillet2, edges_at(fillet2, [
    (27.94, 80.441, 3.81),
    (27.94, 181.035, 3.81),
    (12.7, 181.035, 3.81),
    (12.7, 80.441, 3.81),
    (82.55, 58.851, 3.81),
    (82.55, 95.151, 3.81),
    (40.64, 95.151, 3.81),
    (40.64, 58.851, 3.81),
    (134.62, 164.525, 3.81),
    (134.62, 228.025, 3.81),
    (50.8, 228.025, 3.81),
    (50.8, 164.525, 3.81),
    (140.55, 58.851, 3.81),
    (140.55, 95.151, 3.81),
    (95.25, 95.151, 3.81),
    (95.25, 58.851, 3.81),
]))
fillet3.setExpression("Radius", "Params.fillet3_radius")

doc.recompute()
